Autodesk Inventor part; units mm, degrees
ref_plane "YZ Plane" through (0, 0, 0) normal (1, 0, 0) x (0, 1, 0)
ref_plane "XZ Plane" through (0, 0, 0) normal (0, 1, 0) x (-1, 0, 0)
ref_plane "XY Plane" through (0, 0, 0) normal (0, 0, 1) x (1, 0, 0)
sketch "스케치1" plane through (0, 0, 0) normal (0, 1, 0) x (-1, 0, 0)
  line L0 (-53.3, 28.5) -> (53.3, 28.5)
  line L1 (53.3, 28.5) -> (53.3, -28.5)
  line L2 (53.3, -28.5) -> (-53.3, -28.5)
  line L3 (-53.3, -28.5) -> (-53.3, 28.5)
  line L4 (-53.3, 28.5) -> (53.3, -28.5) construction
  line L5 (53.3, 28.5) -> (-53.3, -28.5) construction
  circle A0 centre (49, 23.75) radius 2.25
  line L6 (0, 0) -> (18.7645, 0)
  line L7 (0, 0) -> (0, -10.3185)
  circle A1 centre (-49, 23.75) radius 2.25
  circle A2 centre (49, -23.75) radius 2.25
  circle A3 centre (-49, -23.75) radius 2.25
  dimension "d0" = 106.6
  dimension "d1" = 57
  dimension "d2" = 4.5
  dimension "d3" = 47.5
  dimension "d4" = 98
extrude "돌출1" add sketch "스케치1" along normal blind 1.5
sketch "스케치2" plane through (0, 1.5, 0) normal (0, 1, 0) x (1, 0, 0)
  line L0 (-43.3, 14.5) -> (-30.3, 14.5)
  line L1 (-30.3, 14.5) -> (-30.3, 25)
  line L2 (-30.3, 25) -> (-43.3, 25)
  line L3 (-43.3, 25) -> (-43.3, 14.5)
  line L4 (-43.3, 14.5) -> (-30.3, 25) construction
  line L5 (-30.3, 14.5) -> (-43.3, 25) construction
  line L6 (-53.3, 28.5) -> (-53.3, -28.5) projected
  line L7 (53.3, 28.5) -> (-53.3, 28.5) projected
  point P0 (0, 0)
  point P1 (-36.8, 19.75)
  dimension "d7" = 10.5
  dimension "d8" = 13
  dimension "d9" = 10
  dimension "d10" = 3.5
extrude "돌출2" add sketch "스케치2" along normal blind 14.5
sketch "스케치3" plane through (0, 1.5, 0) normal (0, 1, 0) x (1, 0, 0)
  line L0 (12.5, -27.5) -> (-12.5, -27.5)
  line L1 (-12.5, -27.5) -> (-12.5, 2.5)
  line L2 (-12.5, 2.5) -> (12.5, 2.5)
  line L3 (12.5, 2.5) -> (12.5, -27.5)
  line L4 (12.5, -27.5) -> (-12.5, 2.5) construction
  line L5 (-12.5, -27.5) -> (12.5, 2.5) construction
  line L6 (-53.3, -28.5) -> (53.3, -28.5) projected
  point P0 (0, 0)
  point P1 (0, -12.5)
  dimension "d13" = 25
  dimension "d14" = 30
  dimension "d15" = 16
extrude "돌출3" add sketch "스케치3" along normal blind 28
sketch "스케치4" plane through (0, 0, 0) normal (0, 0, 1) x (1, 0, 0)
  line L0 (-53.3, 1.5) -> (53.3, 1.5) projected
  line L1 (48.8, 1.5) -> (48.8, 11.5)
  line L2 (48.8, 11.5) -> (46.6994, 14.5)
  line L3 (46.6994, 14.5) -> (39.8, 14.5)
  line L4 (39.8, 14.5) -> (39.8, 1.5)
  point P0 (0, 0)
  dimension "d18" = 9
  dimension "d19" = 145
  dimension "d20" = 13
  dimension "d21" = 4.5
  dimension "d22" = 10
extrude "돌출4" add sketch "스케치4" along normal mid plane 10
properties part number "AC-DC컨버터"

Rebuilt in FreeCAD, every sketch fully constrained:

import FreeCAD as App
import Part
import Sketcher
Q = App.Units.Quantity

doc = App.newDocument("Part")
body = doc.addObject("PartDesign::Body", "Body")

sketch1 = doc.addObject("Sketcher::SketchObject", "Sketch")
body.addObject(sketch1)
sketch1.AttachmentSupport = (doc.XZ_Plane, [""])
sketch1.MapMode = "FlatFace"
sketch1.addGeometry([
    Part.LineSegment(App.Vector(-53.3, 28.5, 0), App.Vector(53.3, 28.5, 0)),
    Part.LineSegment(App.Vector(53.3, 28.5, 0), App.Vector(53.3, -28.5, 0)),
    Part.LineSegment(App.Vector(53.3, -28.5, 0), App.Vector(-53.3, -28.5, 0)),
    Part.LineSegment(App.Vector(-53.3, -28.5, 0), App.Vector(-53.3, 28.5, 0)),
    Part.Circle(App.Vector(49, -23.8, 0), App.Vector(0, 0, 1), 2.2),
    Part.Circle(App.Vector(-49, -23.8, 0), App.Vector(0, 0, 1), 2.2),
    Part.Circle(App.Vector(49, 23.8, 0), App.Vector(0, 0, 1), 2.2),
    Part.Circle(App.Vector(-49, 23.8, 0), App.Vector(0, 0, 1), 2.2),
], False)
sketch1.addConstraint([
    Sketcher.Constraint("Coincident", 0, 2, 1, 1),
    Sketcher.Constraint("Coincident", 1, 2, 2, 1),
    Sketcher.Constraint("Coincident", 2, 2, 3, 1),
    Sketcher.Constraint("Coincident", 3, 2, 0, 1),
    Sketcher.Constraint("Horizontal", 0),
    Sketcher.Constraint("Vertical", 1),
    Sketcher.Constraint("Horizontal", 2),
    Sketcher.Constraint("Vertical", 3),
    Sketcher.Constraint("Equal", 4, 5),
    Sketcher.Constraint("Equal", 5, 6),
    Sketcher.Constraint("Equal", 6, 7),
    Sketcher.Constraint("Symmetric", 5, 3, 6, 3, -1, 1),
    Sketcher.Constraint("Symmetric", 4, 3, 7, 3, -1, 1),
    Sketcher.Constraint("Symmetric", 0, 2, 2, 2, -1, 1),
    Sketcher.Constraint("Symmetric", 4, 3, 5, 3, -2),
    Sketcher.Constraint("Diameter", 4, 4.5),
    Sketcher.Constraint("DistanceY", 1, 2, 1, 1, 57.0),
    Sketcher.Constraint("DistanceX", 0, 1, 0, 2, 106.6),
    Sketcher.Constraint("DistanceX", 5, 3, 4, 3, 98.0),
    Sketcher.Constraint("DistanceY", 4, 3, 6, 3, 47.5),
])
pad1 = doc.addObject("PartDesign::Pad", "Pad")
body.addObject(pad1)
pad1.Profile = sketch1
pad1.Length = 1.5
pad1.Reversed = True

sketch2 = doc.addObject("Sketcher::SketchObject", "Sketch001")
body.addObject(sketch2)
sketch2.AttachmentSupport = (doc.XZ_Plane, [""])
sketch2.MapMode = "FlatFace"
sketch2.AttachmentOffset = App.Placement(App.Vector(0, 0, -1.5), App.Rotation())
sketch2.addGeometry([
    Part.LineSegment(App.Vector(-43, -25, 0), App.Vector(-43, -14, 0)),
    Part.LineSegment(App.Vector(-43, -14, 0), App.Vector(-30, -14, 0)),
    Part.LineSegment(App.Vector(-30, -14, 0), App.Vector(-30, -25, 0)),
    Part.LineSegment(App.Vector(-30, -25, 0), App.Vector(-43, -25, 0)),
], False)
sketch2.addConstraint([
    Sketcher.Constraint("Coincident", 0, 2, 1, 1),
    Sketcher.Constraint("Coincident", 1, 2, 2, 1),
    Sketcher.Constraint("Coincident", 2, 2, 3, 1),
    Sketcher.Constraint("Coincident", 3, 2, 0, 1),
    Sketcher.Constraint("Vertical", 0),
    Sketcher.Constraint("Horizontal", 1),
    Sketcher.Constraint("Vertical", 2),
    Sketcher.Constraint("Horizontal", 3),
    Sketcher.Constraint("DistanceX", 1, 1, 1, 2, 13.0),
    Sketcher.Constraint("DistanceY", 0, 1, 0, 2, 10.5),
    Sketcher.Constraint("DistanceY", 2, 2, -1, 1, 25.0),
    Sketcher.Constraint("DistanceX", 0, 2, -1, 1, 43.3),
])
pad2 = doc.addObject("PartDesign::Pad", "Pad001")
body.addObject(pad2)
pad2.Profile = sketch2
pad2.Length = 14.5
pad2.Reversed = True

sketch3 = doc.addObject("Sketcher::SketchObject", "Sketch002")
body.addObject(sketch3)
sketch3.AttachmentSupport = (doc.XZ_Plane, [""])
sketch3.MapMode = "FlatFace"
sketch3.AttachmentOffset = App.Placement(App.Vector(0, 0, -1.5), App.Rotation())
sketch3.addGeometry([
    Part.LineSegment(App.Vector(-12, 28, 0), App.Vector(12, 28, 0)),
    Part.LineSegment(App.Vector(12, 28, 0), App.Vector(12, -2, 0)),
    Part.LineSegment(App.Vector(12, -2, 0), App.Vector(-12, -2, 0)),
    Part.LineSegment(App.Vector(-12, -2, 0), App.Vector(-12, 28, 0)),
], False)
sketch3.addConstraint([
    Sketcher.Constraint("Coincident", 0, 2, 1, 1),
    Sketcher.Constraint("Coincident", 1, 2, 2, 1),
    Sketcher.Constraint("Coincident", 2, 2, 3, 1),
    Sketcher.Constraint("Coincident", 3, 2, 0, 1),
    Sketcher.Constraint("Horizontal", 0),
    Sketcher.Constraint("Vertical", 1),
    Sketcher.Constraint("Horizontal", 2),
    Sketcher.Constraint("Vertical", 3),
    Sketcher.Constraint("DistanceX", 0, 1, 0, 2, 25.0),
    Sketcher.Constraint("DistanceY", 1, 2, 1, 1, 30.0),
    Sketcher.Constraint("DistanceX", -1, 1, 0, 2, 12.5),
    Sketcher.Constraint("DistanceY", -1, 1, 0, 2, 27.5),
])
pad3 = doc.addObject("PartDesign::Pad", "Pad002")
body.addObject(pad3)
pad3.Profile = sketch3
pad3.Length = 28
pad3.Reversed = True

sketch4 = doc.addObject("Sketcher::SketchObject", "Sketch003")
body.addObject(sketch4)
sketch4.AttachmentSupport = (doc.XY_Plane, [""])
sketch4.MapMode = "FlatFace"
sketch4.addGeometry([
    Part.LineSegment(App.Vector(39.8, 14.5, 0), App.Vector(39.8, 1.5, 0)),
    Part.LineSegment(App.Vector(39.8, 1.5, 0), App.Vector(48.8, 1.5, 0)),
    Part.LineSegment(App.Vector(48.8, 1.5, 0), App.Vector(48.8, 11.5, 0)),
    Part.LineSegment(App.Vector(48.8, 11.5, 0), App.Vector(46.7, 14.5, 0)),
    Part.LineSegment(App.Vector(46.7, 14.5, 0), App.Vector(39.8, 14.5, 0)),
], False)
sketch4.addConstraint([
    Sketcher.Constraint("Coincident", 0, 2, 1, 1),
    Sketcher.Constraint("Coincident", 1, 2, 2, 1),
    Sketcher.Constraint("Coincident", 2, 2, 3, 1),
    Sketcher.Constraint("Coincident", 3, 2, 4, 1),
    Sketcher.Constraint("Coincident", 4, 2, 0, 1),
    Sketcher.Constraint("Vertical", 0),
    Sketcher.Constraint("Horizontal", 1),
    Sketcher.Constraint("Vertical", 2),
    Sketcher.Constraint("Horizontal", 4),
    Sketcher.Constraint("DistanceX", 1, 1, 1, 2, 9.0),
    Sketcher.Constraint("DistanceY", 0, 2, 0, 1, 13.0),
    Sketcher.Constraint("DistanceY", 2, 1, 2, 2, 10.0),
    Sketcher.Constraint("Angle", 3, Q("124.9997 deg")),
    Sketcher.Constraint("DistanceX", -1, 1, 0, 2, 39.8),
    Sketcher.Constraint("DistanceY", -1, 1, 0, 2, 1.5),
])
pad4 = doc.addObject("PartDesign::Pad", "Pad003")
body.addObject(pad4)
pad4.Profile = sketch4
pad4.Length = 10
pad4.Midplane = True

doc.recompute()
